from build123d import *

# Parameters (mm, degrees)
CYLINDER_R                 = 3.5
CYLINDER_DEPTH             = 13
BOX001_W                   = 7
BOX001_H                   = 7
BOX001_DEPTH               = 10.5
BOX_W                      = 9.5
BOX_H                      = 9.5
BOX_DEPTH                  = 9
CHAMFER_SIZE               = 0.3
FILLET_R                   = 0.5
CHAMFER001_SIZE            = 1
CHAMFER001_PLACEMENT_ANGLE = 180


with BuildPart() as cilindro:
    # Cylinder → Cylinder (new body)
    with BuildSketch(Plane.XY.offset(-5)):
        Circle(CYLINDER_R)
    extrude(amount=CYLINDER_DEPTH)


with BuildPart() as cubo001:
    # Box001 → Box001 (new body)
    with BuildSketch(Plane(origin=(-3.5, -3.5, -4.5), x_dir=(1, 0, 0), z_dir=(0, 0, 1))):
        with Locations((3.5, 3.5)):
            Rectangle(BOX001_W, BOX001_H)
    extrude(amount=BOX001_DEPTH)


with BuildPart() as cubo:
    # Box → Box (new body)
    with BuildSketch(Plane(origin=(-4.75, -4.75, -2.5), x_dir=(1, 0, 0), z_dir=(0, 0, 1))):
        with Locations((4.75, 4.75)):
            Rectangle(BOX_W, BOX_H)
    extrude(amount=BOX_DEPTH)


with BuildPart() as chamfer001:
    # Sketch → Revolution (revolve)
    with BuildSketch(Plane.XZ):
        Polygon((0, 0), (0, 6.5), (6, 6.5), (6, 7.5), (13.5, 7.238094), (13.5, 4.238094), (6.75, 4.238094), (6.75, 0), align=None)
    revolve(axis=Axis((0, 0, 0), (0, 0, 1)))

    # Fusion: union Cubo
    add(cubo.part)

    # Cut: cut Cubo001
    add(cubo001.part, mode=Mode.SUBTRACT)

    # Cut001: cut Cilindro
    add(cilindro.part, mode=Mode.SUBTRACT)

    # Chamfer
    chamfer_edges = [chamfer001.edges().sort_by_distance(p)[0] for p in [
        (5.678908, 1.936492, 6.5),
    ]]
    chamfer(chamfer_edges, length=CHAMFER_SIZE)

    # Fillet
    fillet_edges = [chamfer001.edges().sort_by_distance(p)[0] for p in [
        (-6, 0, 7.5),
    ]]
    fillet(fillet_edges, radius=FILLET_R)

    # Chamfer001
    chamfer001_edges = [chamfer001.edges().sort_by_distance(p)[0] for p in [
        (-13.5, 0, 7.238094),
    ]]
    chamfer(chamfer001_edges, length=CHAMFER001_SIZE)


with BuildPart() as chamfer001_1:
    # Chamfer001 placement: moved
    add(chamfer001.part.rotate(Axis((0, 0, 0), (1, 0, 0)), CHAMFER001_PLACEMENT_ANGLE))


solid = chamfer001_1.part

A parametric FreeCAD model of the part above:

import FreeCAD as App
import Part
import Sketcher

V = App.Vector
Q = App.Units.Quantity


def edges_at(feature, points):
    """Names of the edges that pass closest to the given points."""
    edges = feature.Shape.Edges
    near = lambda p: min(range(len(edges)), key=lambda i: edges[i].distToShape(Part.Vertex(*p))[0])
    return sorted({f"Edge{near(p) + 1}" for p in points})


def add_polygon(sketch, points):
    """Adds a closed chain of lines whose ends are joined by coincident constraints."""
    first, n = sketch.GeometryCount, len(points)
    for a, b in zip(points, points[1:] + points[:1]):
        sketch.addGeometry(Part.LineSegment(App.Vector(*a, 0), App.Vector(*b, 0)), False)
    for i in range(n):
        sketch.addConstraint(Sketcher.Constraint("Coincident", first + i, 2, first + (i + 1) % n, 1))

doc = App.newDocument("Part")
body = doc.addObject("PartDesign::Body", "Body")

# Sketch on XY plane
sketch1 = body.newObject("Sketcher::SketchObject", "Sketch")
sketch1.AttachmentSupport = (doc.getObject("XY_Plane"), [""])
sketch1.MapMode = "FlatFace"
sketch1.AttachmentOffset = App.Placement(V(0, 0, -5), App.Rotation())
sketch1.addGeometry(Part.Circle(V(0, 0, 0), V(0, 0, 1), 3.5), False)
sketch1.addConstraint(Sketcher.Constraint("Coincident", 0, 3, -1, 1))
sketch1.addConstraint(Sketcher.Constraint("Diameter", 0, Q("7 mm")))
pad1 = body.newObject("PartDesign::Pad", "Pad")
pad1.Profile = sketch1
pad1.Length = 13
body2 = doc.addObject("PartDesign::Body", "Body001")

# Sketch on XY plane
sketch2 = body2.newObject("Sketcher::SketchObject", "Sketch001")
sketch2.AttachmentSupport = (doc.getObject("XY_Plane001"), [""])
sketch2.MapMode = "FlatFace"
sketch2.AttachmentOffset = App.Placement(V(0, 0, -4.5), App.Rotation())
add_polygon(sketch2, [(-4, 4), (-4, -4), (4, -4), (4, 4)])  # lines 0-3
sketch2.addConstraint(Sketcher.Constraint("Vertical", 0))
sketch2.addConstraint(Sketcher.Constraint("Horizontal", 1))
sketch2.addConstraint(Sketcher.Constraint("Vertical", 2))
sketch2.addConstraint(Sketcher.Constraint("Horizontal", 3))
sketch2.addConstraint(Sketcher.Constraint("Symmetric", 0, 2, 2, 2, -1, 1))
sketch2.addConstraint(Sketcher.Constraint("Equal", 3, 0))
sketch2.addConstraint(Sketcher.Constraint("DistanceX", 1, 1, 1, 2, Q("7 mm")))
pad2 = body2.newObject("PartDesign::Pad", "Pad001")
pad2.Profile = sketch2
pad2.Length = 10.5
body3 = doc.addObject("PartDesign::Body", "Body002")

# Sketch on XY plane
sketch3 = body3.newObject("Sketcher::SketchObject", "Sketch002")
sketch3.AttachmentSupport = (doc.getObject("XY_Plane002"), [""])
sketch3.MapMode = "FlatFace"
sketch3.AttachmentOffset = App.Placement(V(0, 0, -2.5), App.Rotation())
add_polygon(sketch3, [(-5, 5), (-5, -5), (5, -5), (5, 5)])  # lines 0-3
sketch3.addConstraint(Sketcher.Constraint("Vertical", 0))
sketch3.addConstraint(Sketcher.Constraint("Horizontal", 1))
sketch3.addConstraint(Sketcher.Constraint("Vertical", 2))
sketch3.addConstraint(Sketcher.Constraint("Horizontal", 3))
sketch3.addConstraint(Sketcher.Constraint("Symmetric", 0, 2, 2, 2, -1, 1))
sketch3.addConstraint(Sketcher.Constraint("Equal", 3, 0))
sketch3.addConstraint(Sketcher.Constraint("DistanceX", 1, 1, 1, 2, Q("9.5 mm")))
pad3 = body3.newObject("PartDesign::Pad", "Pad002")
pad3.Profile = sketch3
pad3.Length = 9
body4 = doc.addObject("PartDesign::Body", "Body003")

# Sketch on XZ plane
sketch4 = body4.newObject("Sketcher::SketchObject", "Sketch003")
sketch4.AttachmentSupport = (doc.getObject("XZ_Plane003"), [""])
sketch4.MapMode = "FlatFace"
add_polygon(sketch4, [(0, 6.5), (0, 0), (6.8, 0), (6.8, 4.2), (13.5, 4.2), (13.5, 7.2), (6, 7.5), (6, 6.5)])  # lines 0-7
sketch4.addConstraint(Sketcher.Constraint("Vertical", 0))
sketch4.addConstraint(Sketcher.Constraint("Horizontal", 1))
sketch4.addConstraint(Sketcher.Constraint("Vertical", 2))
sketch4.addConstraint(Sketcher.Constraint("Horizontal", 3))
sketch4.addConstraint(Sketcher.Constraint("Vertical", 4))
sketch4.addConstraint(Sketcher.Constraint("Vertical", 6))
sketch4.addConstraint(Sketcher.Constraint("Horizontal", 7))
sketch4.addConstraint(Sketcher.Constraint("Coincident", 0, 2, -1, 1))
sketch4.addConstraint(Sketcher.Constraint("Equal", 1, 3))
sketch4.addConstraint(Sketcher.Constraint("DistanceX", 7, 2, 7, 1, Q("6 mm")))
sketch4.addConstraint(Sketcher.Constraint("DistanceY", 4, 1, 4, 2, Q("3 mm")))
sketch4.addConstraint(Sketcher.Constraint("DistanceY", 6, 2, 6, 1, Q("1 mm")))
sketch4.addConstraint(Sketcher.Constraint("Angle", 5, Q("177.999998 deg")))
sketch4.addConstraint(Sketcher.Constraint("DistanceY", 0, 2, 0, 1, Q("6.5 mm")))
sketch4.addConstraint(Sketcher.Constraint("DistanceX", 1, 1, 1, 2, Q("6.75 mm")))
revolution = body4.newObject("PartDesign::Revolution", "Revolution")
revolution.Profile = sketch4
revolution.ReferenceAxis = (sketch4, ["V_Axis"])
revolution.Angle = 360
doc.recompute()

boolean = body4.newObject("PartDesign::Boolean", "Boolean")
boolean.Type = "Fuse"
boolean.addObjects([body3])
doc.recompute()

boolean2 = body4.newObject("PartDesign::Boolean", "Boolean001")
boolean2.Type = "Cut"
boolean2.addObjects([body2])
doc.recompute()

boolean3 = body4.newObject("PartDesign::Boolean", "Boolean002")
boolean3.Type = "Cut"
boolean3.addObjects([body])
doc.recompute()

chamfer = body4.newObject("PartDesign::Chamfer", "Chamfer")
chamfer.Base = (boolean3, edges_at(boolean3, [(-6, 0, 6.5)]))
chamfer.Size = 0.3
doc.recompute()

fillet = body4.newObject("PartDesign::Fillet", "Fillet")
fillet.Base = (chamfer, edges_at(chamfer, [(-6, 0, 7.5)]))
fillet.Radius = 0.5
doc.recompute()

chamfer2 = body4.newObject("PartDesign::Chamfer", "Chamfer001")
chamfer2.Base = (fillet, edges_at(fillet, [(-13.5, 0, 7.238)]))
chamfer2.Size = 1
body5 = doc.addObject("PartDesign::Body", "Body004")
doc.recompute()

body4.Placement = App.Placement(V(0, 0, 0), App.Rotation(V(1, 0, 0), 180))
boolean4 = body5.newObject("PartDesign::Boolean", "Boolean003")
boolean4.Type = "Fuse"
boolean4.addObjects([body4])

doc.recompute()
